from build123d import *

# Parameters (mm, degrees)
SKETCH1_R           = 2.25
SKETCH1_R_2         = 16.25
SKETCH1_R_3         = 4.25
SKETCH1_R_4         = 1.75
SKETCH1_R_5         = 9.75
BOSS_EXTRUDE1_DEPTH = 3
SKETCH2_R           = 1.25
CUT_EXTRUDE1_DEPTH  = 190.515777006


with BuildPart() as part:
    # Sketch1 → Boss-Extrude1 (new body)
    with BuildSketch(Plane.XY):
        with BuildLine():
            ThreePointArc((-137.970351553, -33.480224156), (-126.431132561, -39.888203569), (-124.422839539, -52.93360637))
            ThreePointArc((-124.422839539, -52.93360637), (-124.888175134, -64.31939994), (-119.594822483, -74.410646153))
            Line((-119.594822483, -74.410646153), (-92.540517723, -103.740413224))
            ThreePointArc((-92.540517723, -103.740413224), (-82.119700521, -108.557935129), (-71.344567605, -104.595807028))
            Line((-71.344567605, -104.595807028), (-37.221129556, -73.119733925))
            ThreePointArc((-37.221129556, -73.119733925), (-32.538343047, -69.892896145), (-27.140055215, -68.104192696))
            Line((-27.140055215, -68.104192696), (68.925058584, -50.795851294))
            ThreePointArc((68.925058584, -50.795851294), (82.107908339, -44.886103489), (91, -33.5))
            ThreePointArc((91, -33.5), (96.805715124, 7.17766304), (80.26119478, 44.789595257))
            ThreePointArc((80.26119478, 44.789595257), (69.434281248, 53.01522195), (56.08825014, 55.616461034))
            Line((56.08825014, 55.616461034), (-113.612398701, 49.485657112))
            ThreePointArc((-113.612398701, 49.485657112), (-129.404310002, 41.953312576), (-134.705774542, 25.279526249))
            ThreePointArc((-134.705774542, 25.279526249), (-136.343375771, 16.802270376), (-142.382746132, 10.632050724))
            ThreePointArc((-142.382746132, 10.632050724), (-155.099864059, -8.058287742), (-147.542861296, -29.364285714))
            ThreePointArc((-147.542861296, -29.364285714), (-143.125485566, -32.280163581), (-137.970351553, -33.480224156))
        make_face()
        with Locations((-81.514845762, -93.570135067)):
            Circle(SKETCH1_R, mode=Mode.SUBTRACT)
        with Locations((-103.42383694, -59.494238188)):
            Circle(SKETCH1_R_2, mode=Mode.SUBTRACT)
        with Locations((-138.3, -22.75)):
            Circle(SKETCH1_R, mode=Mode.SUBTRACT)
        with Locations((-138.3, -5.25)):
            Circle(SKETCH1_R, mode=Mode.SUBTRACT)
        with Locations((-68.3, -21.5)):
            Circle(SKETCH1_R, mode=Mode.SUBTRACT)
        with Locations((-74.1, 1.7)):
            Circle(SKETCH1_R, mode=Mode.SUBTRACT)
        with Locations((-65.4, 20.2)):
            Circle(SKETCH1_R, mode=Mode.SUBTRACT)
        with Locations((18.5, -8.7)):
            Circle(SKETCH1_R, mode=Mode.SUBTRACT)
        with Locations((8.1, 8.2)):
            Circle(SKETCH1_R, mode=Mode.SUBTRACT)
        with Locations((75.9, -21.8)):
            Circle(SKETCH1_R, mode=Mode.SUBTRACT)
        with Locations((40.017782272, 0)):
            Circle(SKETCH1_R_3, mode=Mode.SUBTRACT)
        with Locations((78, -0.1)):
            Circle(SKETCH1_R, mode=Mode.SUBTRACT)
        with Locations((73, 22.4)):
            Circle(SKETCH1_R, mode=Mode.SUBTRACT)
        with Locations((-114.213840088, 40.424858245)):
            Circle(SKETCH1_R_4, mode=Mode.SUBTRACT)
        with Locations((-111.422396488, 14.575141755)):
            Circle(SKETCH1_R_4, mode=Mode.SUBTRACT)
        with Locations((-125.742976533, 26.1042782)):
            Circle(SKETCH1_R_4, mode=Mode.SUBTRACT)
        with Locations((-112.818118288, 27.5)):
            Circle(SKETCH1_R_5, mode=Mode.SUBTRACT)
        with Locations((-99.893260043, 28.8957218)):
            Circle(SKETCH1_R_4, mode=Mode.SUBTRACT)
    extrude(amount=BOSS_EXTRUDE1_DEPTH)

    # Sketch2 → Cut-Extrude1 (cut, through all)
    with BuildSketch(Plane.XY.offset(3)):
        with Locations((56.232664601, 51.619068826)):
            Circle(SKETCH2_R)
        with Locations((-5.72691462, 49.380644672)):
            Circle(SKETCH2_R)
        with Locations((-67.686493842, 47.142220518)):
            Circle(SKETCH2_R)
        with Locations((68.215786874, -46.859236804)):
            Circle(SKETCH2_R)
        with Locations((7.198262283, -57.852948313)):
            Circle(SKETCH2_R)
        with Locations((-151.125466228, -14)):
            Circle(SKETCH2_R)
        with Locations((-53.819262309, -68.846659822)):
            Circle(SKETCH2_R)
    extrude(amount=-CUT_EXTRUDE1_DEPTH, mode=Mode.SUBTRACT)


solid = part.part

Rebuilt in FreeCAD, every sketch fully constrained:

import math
import FreeCAD as App
import Part
import Sketcher
from FreeCAD import Vector
Q = App.Units.Quantity

doc = App.newDocument("Part")
body = doc.addObject("PartDesign::Body", "Body")

# Sketch on XY plane
sketch1 = body.newObject("Sketcher::SketchObject", "Sketch")
sketch1.AttachmentSupport = (doc.getObject("XY_Plane"), [""])
sketch1.MapMode = "FlatFace"
sketch1.addGeometry([
    Part.ArcOfCircle(Part.Circle(Vector(-138.740341, -48.460448, 0), Vector(0, 0, 1), 15), math.radians(-17.350155), math.radians(87.057563)),  # 0
    Part.ArcOfCircle(Part.Circle(Vector(-103.423837, -59.494238, 0), Vector(0, 0, 1), 22), math.radians(162.649844), math.radians(222.688998)),  # 1
    Part.LineSegment(Vector(-119.594822, -74.410646, 0), Vector(-92.540518, -103.740413, 0)),  # 2
    Part.ArcOfCircle(Part.Circle(Vector(-81.514846, -93.570135, 0), Vector(0, 0, 1), 15), math.radians(-137.311002), math.radians(-47.311002)),  # 3
    Part.LineSegment(Vector(-71.344568, -104.595807, 0), Vector(-37.22113, -73.119734, 0)),  # 4
    Part.ArcOfCircle(Part.Circle(Vector(-23.569947, -87.919079, 0), Vector(0, 0, 1), 20.133936), math.radians(100.213575), math.radians(132.688998)),  # 5
    Part.LineSegment(Vector(-27.140055, -68.104193, 0), Vector(68.925059, -50.795851, 0)),  # 6
    Part.ArcOfCircle(Part.Circle(Vector(63.605521, -21.271243, 0), Vector(0, 0, 1), 30), math.radians(-79.786425), math.radians(-24.055744)),  # 7
    Part.ArcOfCircle(Part.Circle(Vector(22.658915, -2.992884, 0), Vector(0, 0, 1), 74.841085), math.radians(-24.055744), math.radians(39.676525)),  # 8
    Part.ArcOfCircle(Part.Circle(Vector(57.171359, 25.636019, 0), Vector(0, 0, 1), 30), math.radians(39.676525), math.radians(92.069034)),  # 9
    Part.LineSegment(Vector(56.08825, 55.616461, 0), Vector(-113.612399, 49.485657, 0)),  # 10
    Part.ArcOfCircle(Part.Circle(Vector(-112.818118, 27.5, 0), Vector(0, 0, 1), 22), math.radians(92.069037), math.radians(185.792763)),  # 11
    Part.ArcOfCircle(Part.Circle(Vector(-149.629177, 23.765567, 0), Vector(0, 0, 1), 15), math.radians(-61.112239), math.radians(5.792763)),  # 12
    Part.ArcOfCircle(Part.Circle(Vector(-130.305362, -11.257143, 0), Vector(0, 0, 1), 25), math.radians(118.887761), math.radians(226.40946)),  # 13
    Part.ArcOfCircle(Part.Circle(Vector(-137.200362, -18.5, 0), Vector(0, 0, 1), 15), math.radians(-133.59054), math.radians(-92.942437)),  # 14
    Part.Circle(Vector(-81.514846, -93.570135, 0), Vector(0, 0, 1), 2.25),  # 15
    Part.Circle(Vector(-103.423837, -59.494238, 0), Vector(0, 0, 1), 16.25),  # 16
    Part.Circle(Vector(-138.3, -22.75, 0), Vector(0, 0, 1), 2.25),  # 17
    Part.Circle(Vector(-138.3, -5.25, 0), Vector(0, 0, 1), 2.25),  # 18
    Part.Circle(Vector(-68.3, -21.5, 0), Vector(0, 0, 1), 2.25),  # 19
    Part.Circle(Vector(-74.1, 1.7, 0), Vector(0, 0, 1), 2.25),  # 20
    Part.Circle(Vector(-111.422396, 14.575142, 0), Vector(0, 0, 1), 1.75),  # 21
    Part.Circle(Vector(-125.742977, 26.104278, 0), Vector(0, 0, 1), 1.75),  # 22
    Part.Circle(Vector(-114.21384, 40.424858, 0), Vector(0, 0, 1), 1.75),  # 23
    Part.Circle(Vector(-112.818118, 27.5, 0), Vector(0, 0, 1), 9.75),  # 24
    Part.Circle(Vector(-99.89326, 28.895722, 0), Vector(0, 0, 1), 1.75),  # 25
    Part.Circle(Vector(-65.4, 20.2, 0), Vector(0, 0, 1), 2.25),  # 26
    Part.Circle(Vector(18.5, -8.7, 0), Vector(0, 0, 1), 2.25),  # 27
    Part.Circle(Vector(75.9, -21.8, 0), Vector(0, 0, 1), 2.25),  # 28
    Part.Circle(Vector(40.017782, 0, 0), Vector(0, 0, 1), 4.25),  # 29
    Part.Circle(Vector(78, -0.1, 0), Vector(0, 0, 1), 2.25),  # 30
    Part.Circle(Vector(8.1, 8.2, 0), Vector(0, 0, 1), 2.25),  # 31
    Part.Circle(Vector(73, 22.4, 0), Vector(0, 0, 1), 2.25),  # 32
], False)
sketch1.addConstraint([
    Sketcher.Constraint("Tangent", 0, 1, 1, 1),
    Sketcher.Constraint("Tangent", 1, 2, 2, 1),
    Sketcher.Constraint("Tangent", 2, 2, 3, 1),
    Sketcher.Constraint("Tangent", 3, 2, 4, 1),
    Sketcher.Constraint("Tangent", 4, 2, 5, 2),
    Sketcher.Constraint("Tangent", 5, 1, 6, 1),
    Sketcher.Constraint("Tangent", 6, 2, 7, 1),
    Sketcher.Constraint("Tangent", 7, 2, 8, 1),
    Sketcher.Constraint("Tangent", 8, 2, 9, 1),
    Sketcher.Constraint("Tangent", 9, 2, 10, 1),
    Sketcher.Constraint("Tangent", 10, 2, 11, 1),
    Sketcher.Constraint("Tangent", 11, 2, 12, 2),
    Sketcher.Constraint("Tangent", 12, 1, 13, 1),
    Sketcher.Constraint("Tangent", 13, 2, 14, 1),
    Sketcher.Constraint("Tangent", 14, 2, 0, 2),
    Sketcher.Constraint("Coincident", 15, 3, 3, 3),
    Sketcher.Constraint("Coincident", 16, 3, 1, 3),
    Sketcher.Constraint("Coincident", 24, 3, 11, 3),
    Sketcher.Constraint("Equal", 0, 3),
    Sketcher.Constraint("Equal", 7, 9),
    Sketcher.Constraint("Equal", 1, 11),
    Sketcher.Constraint("Equal", 3, 12),
    Sketcher.Constraint("Equal", 12, 14),
    Sketcher.Constraint("Equal", 15, 17),
    Sketcher.Constraint("Equal", 17, 18),
    Sketcher.Constraint("Equal", 18, 19),
    Sketcher.Constraint("Equal", 19, 20),
    Sketcher.Constraint("Equal", 21, 22),
    Sketcher.Constraint("Equal", 22, 23),
    Sketcher.Constraint("Equal", 23, 25),
    Sketcher.Constraint("Equal", 20, 26),
    Sketcher.Constraint("Equal", 26, 27),
    Sketcher.Constraint("Equal", 27, 28),
    Sketcher.Constraint("Equal", 28, 30),
    Sketcher.Constraint("Equal", 30, 31),
    Sketcher.Constraint("Equal", 31, 32),
    Sketcher.Constraint("PointOnObject", 29, 3, -1),
    Sketcher.Constraint("Perpendicular", 2, 4),
    Sketcher.Constraint("Vertical", 17, 3, 18, 3),
    Sketcher.Constraint("Radius", 0, Q("15 mm")),
    Sketcher.Constraint("Radius", 1, Q("22 mm")),
    Sketcher.Constraint("Radius", 7, Q("30 mm")),
    Sketcher.Constraint("Radius", 13, Q("25 mm")),
    Sketcher.Constraint("Diameter", 15, Q("4.5 mm")),
    Sketcher.Constraint("Diameter", 16, Q("32.5 mm")),
    Sketcher.Constraint("Diameter", 21, Q("3.5 mm")),
    Sketcher.Constraint("Diameter", 24, Q("19.5 mm")),
    Sketcher.Constraint("Diameter", 29, Q("8.5 mm")),
    Sketcher.Constraint("DistanceX", -1, 1, 30, 3, Q("78 mm")),
    Sketcher.Constraint("DistanceX", -1, 1, 32, 3, Q("73 mm")),
    Sketcher.Constraint("DistanceX", -1, 1, 7, 2, Q("91 mm")),
    Sketcher.Constraint("DistanceY", 14, 3, 11, 3, Q("46 mm")),
    Sketcher.Constraint("DistanceY", 19, 3, 11, 3, Q("49 mm")),
    Sketcher.Constraint("DistanceY", -1, 1, 11, 3, Q("27.5 mm")),
    Sketcher.Constraint("DistanceX", 17, 3, -1, 1, Q("138.3 mm")),
    Sketcher.Constraint("DistanceX", 19, 3, -1, 1, Q("68.3 mm")),
    Sketcher.Constraint("DistanceX", 20, 3, -1, 1, Q("74.1 mm")),
    Sketcher.Constraint("DistanceY", -1, 1, 20, 3, Q("1.7 mm")),
    Sketcher.Constraint("DistanceX", 26, 3, -1, 1, Q("65.4 mm")),
    Sketcher.Constraint("DistanceY", -1, 1, 26, 3, Q("20.2 mm")),
    Sketcher.Constraint("DistanceX", -1, 1, 27, 3, Q("18.5 mm")),
    Sketcher.Constraint("DistanceY", 27, 3, -1, 1, Q("8.7 mm")),
    Sketcher.Constraint("DistanceX", -1, 1, 28, 3, Q("75.9 mm")),
    Sketcher.Constraint("DistanceY", 28, 3, -1, 1, Q("21.8 mm")),
    Sketcher.Constraint("DistanceY", 30, 3, -1, 1, Q("0.1 mm")),
    Sketcher.Constraint("DistanceX", -1, 1, 31, 3, Q("8.1 mm")),
    Sketcher.Constraint("DistanceY", -1, 1, 31, 3, Q("8.2 mm")),
    Sketcher.Constraint("DistanceY", -1, 1, 32, 3, Q("22.4 mm")),
    Sketcher.Constraint("DistanceY", 7, 2, -1, 1, Q("33.5 mm")),
    Sketcher.Constraint("DistanceY", 17, 3, 18, 3, Q("17.5 mm")),
    Sketcher.Constraint("DistanceY", 17, 3, -1, 1, Q("22.75 mm")),
    Sketcher.Constraint("Radius", 5, Q("20.133936 mm")),
    Sketcher.Constraint("Radius", 8, Q("74.841085 mm")),
    Sketcher.Constraint("DistanceX", 14, 3, 13, 3, Q("6.895 mm")),
    Sketcher.Constraint("DistanceX", 10, 2, -1, 1, Q("113.612399 mm")),
    Sketcher.Constraint("DistanceX", 3, 3, 5, 3, Q("57.944898 mm")),
    Sketcher.Constraint("DistanceY", 5, 3, 9, 3, Q("113.555099 mm")),
    Sketcher.Constraint("DistanceY", 3, 3, 12, 3, Q("117.335702 mm")),
    Sketcher.Constraint("DistanceX", 12, 3, 22, 3, Q("23.8862 mm")),
    Sketcher.Constraint("DistanceX", 0, 3, 0, 1, Q("14.317502 mm")),
    Sketcher.Constraint("DistanceY", 3, 3, 4, 2, Q("20.450401 mm")),
    Sketcher.Constraint("DistanceY", 23, 3, 10, 2, Q("9.060799 mm")),
    Sketcher.Constraint("DistanceX", 11, 2, 22, 3, Q("8.962798 mm")),
    Sketcher.Constraint("Distance", 6, Q("97.611909 mm")),
    Sketcher.Constraint("DistanceX", 0, 3, -1, 1, Q("138.740341 mm")),
    Sketcher.Constraint("DistanceY", -1, 1, 21, 3, Q("14.575142 mm")),
    Sketcher.Constraint("DistanceY", -1, 1, 22, 3, Q("26.104278 mm")),
    Sketcher.Constraint("DistanceX", 23, 3, -1, 1, Q("114.21384 mm")),
    Sketcher.Constraint("DistanceX", 25, 3, -1, 1, Q("99.89326 mm")),
    Sketcher.Constraint("DistanceY", -1, 1, 25, 3, Q("28.895722 mm")),
    Sketcher.Constraint("DistanceX", 11, 3, 21, 3, Q("1.395722 mm")),
    Sketcher.Constraint("DistanceX", 29, 3, 7, 3, Q("23.587738 mm")),
])
pad1 = body.newObject("PartDesign::Pad", "Pad")
pad1.Profile = sketch1
pad1.Length = 3

# Sketch on XY plane
sketch2 = body.newObject("Sketcher::SketchObject", "Sketch001")
sketch2.AttachmentSupport = (doc.getObject("XY_Plane"), [""])
sketch2.MapMode = "FlatFace"
sketch2.AttachmentOffset = App.Placement(Vector(0, 0, 3), App.Rotation())
sketch2.addGeometry([
    Part.Circle(Vector(56.232665, 51.619069, 0), Vector(0, 0, 1), 1.25),  # 0
    Part.Circle(Vector(-5.726915, 49.380645, 0), Vector(0, 0, 1), 1.25),  # 1
    Part.Circle(Vector(-67.686494, 47.142221, 0), Vector(0, 0, 1), 1.25),  # 2
    Part.Circle(Vector(68.215787, -46.859237, 0), Vector(0, 0, 1), 1.25),  # 3
    Part.Circle(Vector(7.198262, -57.852948, 0), Vector(0, 0, 1), 1.25),  # 4
    Part.Circle(Vector(-151.125466, -14, 0), Vector(0, 0, 1), 1.25),  # 5
    Part.Circle(Vector(-53.819262, -68.84666, 0), Vector(0, 0, 1), 1.25),  # 6
], False)
sketch2.addConstraint([
    Sketcher.Constraint("Equal", 0, 1),
    Sketcher.Constraint("Equal", 1, 2),
    Sketcher.Constraint("Equal", 2, 3),
    Sketcher.Constraint("Equal", 3, 4),
    Sketcher.Constraint("Equal", 4, 5),
    Sketcher.Constraint("Equal", 5, 6),
    Sketcher.Constraint("Diameter", 0, Q("2.5 mm")),
    Sketcher.Constraint("DistanceY", 5, 3, -1, 1, Q("14 mm")),
    Sketcher.Constraint("DistanceX", 1, 3, 3, 3, Q("73.942701 mm")),
    Sketcher.Constraint("DistanceY", -1, 1, 0, 3, Q("51.619069 mm")),
    Sketcher.Constraint("DistanceY", -1, 1, 2, 3, Q("47.142221 mm")),
    Sketcher.Constraint("DistanceY", 4, 3, -1, 1, Q("57.852948 mm")),
    Sketcher.Constraint("DistanceY", 6, 3, -1, 1, Q("68.84666 mm")),
    Sketcher.Constraint("DistanceX", 1, 3, 0, 3, Q("61.959579 mm")),
    Sketcher.Constraint("DistanceX", 2, 3, 1, 3, Q("61.959579 mm")),
    Sketcher.Constraint("DistanceY", 3, 3, 1, 3, Q("96.239881 mm")),
    Sketcher.Constraint("DistanceY", 4, 3, 3, 3, Q("10.993712 mm")),
    Sketcher.Constraint("DistanceX", 5, 3, 1, 3, Q("145.398552 mm")),
    Sketcher.Constraint("DistanceX", 5, 3, 4, 3, Q("158.323729 mm")),
    Sketcher.Constraint("DistanceX", 2, 3, 6, 3, Q("13.867232 mm")),
    Sketcher.Constraint("DistanceX", -1, 1, 0, 3, Q("56.232665 mm")),
])
pocket1 = body.newObject("PartDesign::Pocket", "Pocket")
pocket1.Profile = sketch2
pocket1.Type = "ThroughAll"

doc.recompute()
